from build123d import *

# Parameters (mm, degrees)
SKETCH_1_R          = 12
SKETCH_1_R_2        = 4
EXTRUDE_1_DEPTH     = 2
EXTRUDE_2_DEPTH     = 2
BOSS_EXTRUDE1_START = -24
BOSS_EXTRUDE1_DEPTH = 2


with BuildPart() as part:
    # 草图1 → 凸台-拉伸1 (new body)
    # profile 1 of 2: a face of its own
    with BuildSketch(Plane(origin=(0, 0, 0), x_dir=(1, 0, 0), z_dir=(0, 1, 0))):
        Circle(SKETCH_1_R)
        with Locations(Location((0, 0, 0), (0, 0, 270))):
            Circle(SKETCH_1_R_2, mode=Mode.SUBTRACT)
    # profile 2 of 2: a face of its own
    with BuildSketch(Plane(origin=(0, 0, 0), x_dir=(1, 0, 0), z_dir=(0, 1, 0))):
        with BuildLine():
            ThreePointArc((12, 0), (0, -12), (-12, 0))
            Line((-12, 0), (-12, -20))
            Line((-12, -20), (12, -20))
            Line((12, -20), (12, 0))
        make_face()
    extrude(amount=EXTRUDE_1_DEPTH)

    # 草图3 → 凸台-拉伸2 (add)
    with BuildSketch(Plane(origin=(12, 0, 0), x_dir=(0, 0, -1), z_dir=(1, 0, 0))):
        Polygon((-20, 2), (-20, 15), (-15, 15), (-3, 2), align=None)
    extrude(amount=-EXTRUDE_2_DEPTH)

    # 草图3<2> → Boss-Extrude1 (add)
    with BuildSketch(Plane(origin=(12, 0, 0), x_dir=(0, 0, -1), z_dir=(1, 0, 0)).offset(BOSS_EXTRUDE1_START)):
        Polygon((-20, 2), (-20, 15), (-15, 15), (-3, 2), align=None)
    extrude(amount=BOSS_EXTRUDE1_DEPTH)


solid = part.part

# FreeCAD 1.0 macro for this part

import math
import FreeCAD as App
import Part
import Sketcher
from FreeCAD import Vector
Q = App.Units.Quantity

doc = App.newDocument("Part")
body = doc.addObject("PartDesign::Body", "Body")

sketch1 = body.newObject("Sketcher::SketchObject", "Sketch")
sketch1.AttachmentSupport = (doc.getObject("XZ_Plane"), [""])
sketch1.MapMode = "FlatFace"
sketch1.addGeometry(Part.ArcOfCircle(Part.Circle(Vector(0, 0, 0), Vector(0, 0, 1), 12), math.radians(180), math.radians(360)), False)
sketch1.addGeometry(Part.LineSegment(Vector(-12, 0, 0), Vector(-12, 20, 0)), False)
sketch1.addGeometry(Part.LineSegment(Vector(-12, 20, 0), Vector(12, 20, 0)), False)
sketch1.addGeometry(Part.LineSegment(Vector(12, 20, 0), Vector(12, 0, 0)), False)
sketch1.addGeometry(Part.Circle(Vector(0, 0, 0), Vector(0, 0, 1), 4), False)
sketch1.addConstraint(Sketcher.Constraint("Tangent", 0, 1, 1, 1))
sketch1.addConstraint(Sketcher.Constraint("Coincident", 1, 2, 2, 1))
sketch1.addConstraint(Sketcher.Constraint("Coincident", 2, 2, 3, 1))
sketch1.addConstraint(Sketcher.Constraint("Tangent", 3, 2, 0, 2))
sketch1.addConstraint(Sketcher.Constraint("Vertical", 1))
sketch1.addConstraint(Sketcher.Constraint("Horizontal", 2))
sketch1.addConstraint(Sketcher.Constraint("Vertical", 3))
sketch1.addConstraint(Sketcher.Constraint("Coincident", 0, 3, -1, 1))
sketch1.addConstraint(Sketcher.Constraint("Coincident", 4, 3, -1, 1))
sketch1.addConstraint(Sketcher.Constraint("Diameter", 4, Q("8 mm")))
sketch1.addConstraint(Sketcher.Constraint("Radius", 0, Q("12 mm")))
sketch1.addConstraint(Sketcher.Constraint("DistanceY", 1, 1, 1, 2, Q("20 mm")))
pad1 = body.newObject("PartDesign::Pad", "Pad")
pad1.Profile = sketch1
pad1.Length = 2
pad1.Reversed = True

sketch2 = body.newObject("Sketcher::SketchObject", "Sketch001")
sketch2.AttachmentSupport = (doc.getObject("YZ_Plane"), [""])
sketch2.MapMode = "FlatFace"
sketch2.AttachmentOffset = App.Placement(Vector(0, 0, 12), App.Rotation())
sketch2.addGeometry(Part.LineSegment(Vector(15, 20, 0), Vector(2, 20, 0)), False)
sketch2.addGeometry(Part.LineSegment(Vector(2, 20, 0), Vector(2, 3, 0)), False)
sketch2.addGeometry(Part.LineSegment(Vector(2, 3, 0), Vector(15, 15, 0)), False)
sketch2.addGeometry(Part.LineSegment(Vector(15, 15, 0), Vector(15, 20, 0)), False)
sketch2.addConstraint(Sketcher.Constraint("Coincident", 0, 2, 1, 1))
sketch2.addConstraint(Sketcher.Constraint("Coincident", 1, 2, 2, 1))
sketch2.addConstraint(Sketcher.Constraint("Coincident", 2, 2, 3, 1))
sketch2.addConstraint(Sketcher.Constraint("Coincident", 3, 2, 0, 1))
sketch2.addConstraint(Sketcher.Constraint("Horizontal", 0))
sketch2.addConstraint(Sketcher.Constraint("Vertical", 1))
sketch2.addConstraint(Sketcher.Constraint("Vertical", 3))
sketch2.addConstraint(Sketcher.Constraint("DistanceX", 0, 2, 0, 1, Q("13 mm")))
sketch2.addConstraint(Sketcher.Constraint("DistanceY", 1, 2, 1, 1, Q("17 mm")))
sketch2.addConstraint(Sketcher.Constraint("DistanceY", 3, 1, 3, 2, Q("5 mm")))
sketch2.addConstraint(Sketcher.Constraint("DistanceX", -1, 1, 0, 2, Q("2 mm")))
sketch2.addConstraint(Sketcher.Constraint("DistanceY", -1, 1, 0, 2, Q("20 mm")))
pad2 = body.newObject("PartDesign::Pad", "Pad001")
pad2.Profile = sketch2
pad2.Length = 2
pad2.Reversed = True

sketch3 = body.newObject("Sketcher::SketchObject", "Sketch002")
sketch3.AttachmentSupport = (doc.getObject("YZ_Plane"), [""])
sketch3.MapMode = "FlatFace"
sketch3.AttachmentOffset = App.Placement(Vector(0, 0, -12), App.Rotation())
sketch3.addGeometry(Part.LineSegment(Vector(15, 20, 0), Vector(2, 20, 0)), False)
sketch3.addGeometry(Part.LineSegment(Vector(2, 20, 0), Vector(2, 3, 0)), False)
sketch3.addGeometry(Part.LineSegment(Vector(2, 3, 0), Vector(15, 15, 0)), False)
sketch3.addGeometry(Part.LineSegment(Vector(15, 15, 0), Vector(15, 20, 0)), False)
sketch3.addConstraint(Sketcher.Constraint("Coincident", 0, 2, 1, 1))
sketch3.addConstraint(Sketcher.Constraint("Coincident", 1, 2, 2, 1))
sketch3.addConstraint(Sketcher.Constraint("Coincident", 2, 2, 3, 1))
sketch3.addConstraint(Sketcher.Constraint("Coincident", 3, 2, 0, 1))
sketch3.addConstraint(Sketcher.Constraint("Horizontal", 0))
sketch3.addConstraint(Sketcher.Constraint("Vertical", 1))
sketch3.addConstraint(Sketcher.Constraint("Vertical", 3))
sketch3.addConstraint(Sketcher.Constraint("DistanceX", 0, 2, 0, 1, Q("13 mm")))
sketch3.addConstraint(Sketcher.Constraint("DistanceY", 1, 2, 1, 1, Q("17 mm")))
sketch3.addConstraint(Sketcher.Constraint("DistanceY", 3, 1, 3, 2, Q("5 mm")))
sketch3.addConstraint(Sketcher.Constraint("DistanceX", -1, 1, 0, 2, Q("2 mm")))
sketch3.addConstraint(Sketcher.Constraint("DistanceY", -1, 1, 0, 2, Q("20 mm")))
pad3 = body.newObject("PartDesign::Pad", "Pad002")
pad3.Profile = sketch3
pad3.Length = 2

doc.recompute()
